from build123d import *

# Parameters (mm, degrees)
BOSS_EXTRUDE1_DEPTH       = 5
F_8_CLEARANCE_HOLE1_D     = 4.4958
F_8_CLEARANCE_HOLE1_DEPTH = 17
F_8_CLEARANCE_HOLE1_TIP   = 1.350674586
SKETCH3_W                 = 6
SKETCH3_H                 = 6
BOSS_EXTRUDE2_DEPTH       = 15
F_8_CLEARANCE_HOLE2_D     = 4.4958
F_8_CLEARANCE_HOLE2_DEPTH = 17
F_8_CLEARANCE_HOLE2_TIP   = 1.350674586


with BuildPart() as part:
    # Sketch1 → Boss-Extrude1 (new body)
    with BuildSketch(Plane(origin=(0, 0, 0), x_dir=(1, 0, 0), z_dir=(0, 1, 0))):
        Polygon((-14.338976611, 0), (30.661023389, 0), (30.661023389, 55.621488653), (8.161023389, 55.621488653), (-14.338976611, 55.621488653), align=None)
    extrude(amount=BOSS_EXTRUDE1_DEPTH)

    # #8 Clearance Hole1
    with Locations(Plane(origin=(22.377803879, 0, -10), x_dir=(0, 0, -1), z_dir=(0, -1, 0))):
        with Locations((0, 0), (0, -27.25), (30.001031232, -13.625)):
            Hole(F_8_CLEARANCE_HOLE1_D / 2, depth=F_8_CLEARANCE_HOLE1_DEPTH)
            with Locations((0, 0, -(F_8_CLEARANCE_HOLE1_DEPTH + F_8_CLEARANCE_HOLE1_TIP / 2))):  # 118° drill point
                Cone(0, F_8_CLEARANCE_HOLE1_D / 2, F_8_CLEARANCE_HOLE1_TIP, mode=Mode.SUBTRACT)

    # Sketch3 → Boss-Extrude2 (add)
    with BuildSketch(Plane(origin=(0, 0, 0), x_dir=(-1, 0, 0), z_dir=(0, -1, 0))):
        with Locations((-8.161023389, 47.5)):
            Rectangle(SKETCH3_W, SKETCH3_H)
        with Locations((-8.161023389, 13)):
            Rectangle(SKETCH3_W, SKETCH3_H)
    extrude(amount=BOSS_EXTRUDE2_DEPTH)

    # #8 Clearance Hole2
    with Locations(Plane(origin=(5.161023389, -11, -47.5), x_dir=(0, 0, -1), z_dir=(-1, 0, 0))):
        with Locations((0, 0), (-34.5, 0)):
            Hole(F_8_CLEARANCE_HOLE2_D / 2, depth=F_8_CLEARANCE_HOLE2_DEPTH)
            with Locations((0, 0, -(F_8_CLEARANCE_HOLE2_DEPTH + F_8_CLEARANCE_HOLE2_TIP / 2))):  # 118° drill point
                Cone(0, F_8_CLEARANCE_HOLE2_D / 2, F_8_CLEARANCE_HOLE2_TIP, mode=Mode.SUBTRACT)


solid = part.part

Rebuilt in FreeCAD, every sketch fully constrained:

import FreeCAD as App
import Part
import Sketcher
Q = App.Units.Quantity


def add_polygon(sketch, points):
    """Adds a closed chain of lines whose ends are joined by coincident constraints."""
    first, n = sketch.GeometryCount, len(points)
    for a, b in zip(points, points[1:] + points[:1]):
        sketch.addGeometry(Part.LineSegment(App.Vector(*a, 0), App.Vector(*b, 0)), False)
    for i in range(n):
        sketch.addConstraint(Sketcher.Constraint("Coincident", first + i, 2, first + (i + 1) % n, 1))

doc = App.newDocument("Part")
body = doc.addObject("PartDesign::Body", "Body")

# Sketch on XZ plane
sketch1 = body.newObject("Sketcher::SketchObject", "Sketch")
sketch1.AttachmentSupport = (doc.getObject("XZ_Plane"), [""])
sketch1.MapMode = "FlatFace"
add_polygon(sketch1, [(-14, 0), (31, 0), (31, -56), (-14, -56)])  # lines 0-3
sketch1.addConstraint([
    Sketcher.Constraint("Horizontal", 0),
    Sketcher.Constraint("Vertical", 1),
    Sketcher.Constraint("Horizontal", 2),
    Sketcher.Constraint("Vertical", 3),
    Sketcher.Constraint("PointOnObject", 0, 2, -1),
    Sketcher.Constraint("DistanceX", 0, 1, 0, 2, Q("45 mm")),
    Sketcher.Constraint("DistanceY", 1, 2, 1, 1, Q("55.621489 mm")),
    Sketcher.Constraint("DistanceX", -1, 1, 0, 2, Q("30.661023 mm")),
])
pad1 = body.newObject("PartDesign::Pad", "Pad")
pad1.Profile = sketch1
pad1.Length = 5
pad1.Reversed = True

# Sketch on XZ plane
sketch2 = body.newObject("Sketcher::SketchObject", "Sketch001")
sketch2.AttachmentSupport = (doc.getObject("XZ_Plane"), [""])
sketch2.MapMode = "FlatFace"
sketch2.addGeometry([
    Part.Circle(App.Vector(22.4, -10, 0), App.Vector(0, 0, 1), 2.2),
    Part.Circle(App.Vector(-4.9, -10, 0), App.Vector(0, 0, 1), 2.2),
    Part.Circle(App.Vector(8.8, -40, 0), App.Vector(0, 0, 1), 2.2),
], False)
sketch2.addConstraint([
    Sketcher.Constraint("Equal", 0, 1),
    Sketcher.Constraint("Equal", 1, 2),
    Sketcher.Constraint("Horizontal", 0, 3, 1, 3),
    Sketcher.Constraint("DistanceY", 0, 3, -1, 1, Q("10 mm")),
    Sketcher.Constraint("Diameter", 0, Q("4.4958 mm")),
    Sketcher.Constraint("DistanceX", 1, 3, 0, 3, Q("27.25 mm")),
    Sketcher.Constraint("DistanceX", 2, 3, 0, 3, Q("13.625 mm")),
    Sketcher.Constraint("DistanceY", 2, 3, -1, 1, Q("40.001031 mm")),
    Sketcher.Constraint("DistanceX", -1, 1, 0, 3, Q("22.377804 mm")),
])
doc.recompute()
hole = body.newObject("PartDesign::Hole", "Hole")
hole.Profile = sketch2
hole.ThreadType = "None"
hole.Diameter = 4.4958
hole.DepthType = "Dimension"
hole.Depth = 17
hole.DrillPoint = "Angled"
hole.DrillPointAngle = 118

# Sketch on XZ plane
sketch3 = body.newObject("Sketcher::SketchObject", "Sketch002")
sketch3.AttachmentSupport = (doc.getObject("XZ_Plane"), [""])
sketch3.MapMode = "FlatFace"
add_polygon(sketch3, [(11, -50), (11, -44), (5, -44), (5, -50)])  # lines 0-3
add_polygon(sketch3, [(11, -16), (11, -10), (5, -10), (5, -16)])  # lines 4-7
sketch3.addConstraint([
    Sketcher.Constraint("Vertical", 0),
    Sketcher.Constraint("Horizontal", 1),
    Sketcher.Constraint("Vertical", 2),
    Sketcher.Constraint("Horizontal", 3),
    Sketcher.Constraint("Vertical", 4),
    Sketcher.Constraint("Horizontal", 5),
    Sketcher.Constraint("Vertical", 6),
    Sketcher.Constraint("Horizontal", 7),
    Sketcher.Constraint("Vertical", 3, 2, 4, 2),
    Sketcher.Constraint("Vertical", 2, 2, 5, 2),
    Sketcher.Constraint("Equal", 7, 0),
    Sketcher.Constraint("Equal", 2, 4),
    Sketcher.Constraint("DistanceX", 1, 2, 1, 1, Q("6 mm")),
    Sketcher.Constraint("DistanceY", 4, 2, -1, 1, Q("10 mm")),
    Sketcher.Constraint("DistanceY", 0, 2, -1, 1, Q("44.5 mm")),
    Sketcher.Constraint("DistanceX", -1, 1, 0, 2, Q("11.161023 mm")),
])
pad2 = body.newObject("PartDesign::Pad", "Pad001")
pad2.Profile = sketch3
pad2.Length = 15

# Sketch on YZ plane
sketch4 = body.newObject("Sketcher::SketchObject", "Sketch003")
sketch4.AttachmentSupport = (doc.getObject("YZ_Plane"), [""])
sketch4.MapMode = "FlatFace"
sketch4.AttachmentOffset = App.Placement(App.Vector(0, 0, 5.161023), App.Rotation())
sketch4.addGeometry([
    Part.Circle(App.Vector(-11, -47.5, 0), App.Vector(0, 0, 1), 2.2),
    Part.Circle(App.Vector(-11, -13, 0), App.Vector(0, 0, 1), 2.2),
], False)
sketch4.addConstraint([
    Sketcher.Constraint("Equal", 0, 1),
    Sketcher.Constraint("Vertical", 0, 3, 1, 3),
    Sketcher.Constraint("DistanceX", 0, 3, -1, 1, Q("11 mm")),
    Sketcher.Constraint("DistanceY", 1, 3, -1, 1, Q("13 mm")),
    Sketcher.Constraint("Diameter", 0, Q("4.4958 mm")),
    Sketcher.Constraint("DistanceY", 0, 3, -1, 1, Q("47.5 mm")),
])
doc.recompute()
hole2 = body.newObject("PartDesign::Hole", "Hole001")
hole2.Profile = sketch4
hole2.ThreadType = "None"
hole2.Diameter = 4.4958
hole2.DepthType = "Dimension"
hole2.Depth = 17
hole2.DrillPoint = "Angled"
hole2.DrillPointAngle = 118
hole2.Reversed = True

doc.recompute()
